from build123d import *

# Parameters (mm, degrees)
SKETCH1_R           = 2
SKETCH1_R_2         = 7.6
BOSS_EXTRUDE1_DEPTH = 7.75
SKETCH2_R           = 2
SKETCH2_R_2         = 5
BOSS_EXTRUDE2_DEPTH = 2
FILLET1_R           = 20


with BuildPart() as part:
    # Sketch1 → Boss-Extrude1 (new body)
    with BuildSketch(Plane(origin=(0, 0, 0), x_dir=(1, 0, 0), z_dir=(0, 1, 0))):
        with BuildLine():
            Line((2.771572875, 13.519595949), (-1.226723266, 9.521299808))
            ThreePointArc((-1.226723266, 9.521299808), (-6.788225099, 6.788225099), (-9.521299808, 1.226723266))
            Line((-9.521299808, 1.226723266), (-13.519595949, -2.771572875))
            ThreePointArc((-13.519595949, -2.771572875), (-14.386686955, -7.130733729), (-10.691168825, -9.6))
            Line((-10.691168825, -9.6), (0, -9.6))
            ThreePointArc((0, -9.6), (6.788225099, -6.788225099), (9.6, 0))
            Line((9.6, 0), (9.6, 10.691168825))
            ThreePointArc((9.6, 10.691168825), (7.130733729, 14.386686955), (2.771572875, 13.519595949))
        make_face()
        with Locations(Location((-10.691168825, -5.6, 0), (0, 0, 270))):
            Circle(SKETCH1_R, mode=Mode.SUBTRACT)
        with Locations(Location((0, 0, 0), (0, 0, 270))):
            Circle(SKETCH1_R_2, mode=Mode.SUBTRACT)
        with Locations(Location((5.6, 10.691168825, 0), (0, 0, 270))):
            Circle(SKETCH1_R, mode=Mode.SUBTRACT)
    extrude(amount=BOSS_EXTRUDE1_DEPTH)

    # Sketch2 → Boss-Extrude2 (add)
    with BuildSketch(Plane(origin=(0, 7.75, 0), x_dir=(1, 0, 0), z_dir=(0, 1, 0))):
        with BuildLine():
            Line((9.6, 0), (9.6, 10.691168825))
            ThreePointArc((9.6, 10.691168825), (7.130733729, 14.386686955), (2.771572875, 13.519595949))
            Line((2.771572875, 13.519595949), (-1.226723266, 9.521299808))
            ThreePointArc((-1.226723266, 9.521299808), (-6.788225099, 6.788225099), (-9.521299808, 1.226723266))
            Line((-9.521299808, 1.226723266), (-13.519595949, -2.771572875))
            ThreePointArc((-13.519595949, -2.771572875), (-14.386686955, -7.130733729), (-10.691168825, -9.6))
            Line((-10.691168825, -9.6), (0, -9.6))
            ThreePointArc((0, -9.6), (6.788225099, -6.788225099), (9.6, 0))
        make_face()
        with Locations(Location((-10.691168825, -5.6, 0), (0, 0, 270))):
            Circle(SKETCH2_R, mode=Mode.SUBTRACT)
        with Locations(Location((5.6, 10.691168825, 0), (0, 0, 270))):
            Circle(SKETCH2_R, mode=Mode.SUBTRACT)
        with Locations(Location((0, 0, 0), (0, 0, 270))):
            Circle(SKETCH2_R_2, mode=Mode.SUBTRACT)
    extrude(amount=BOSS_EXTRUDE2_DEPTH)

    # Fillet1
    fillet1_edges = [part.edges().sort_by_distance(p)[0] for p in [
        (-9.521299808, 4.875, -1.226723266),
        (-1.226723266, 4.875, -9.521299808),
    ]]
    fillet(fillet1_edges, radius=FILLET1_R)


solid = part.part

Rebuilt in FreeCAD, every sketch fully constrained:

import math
import FreeCAD as App
import Part
import Sketcher
Q = App.Units.Quantity


def edges_at(feature, points):
    """Names of the edges that pass closest to the given points."""
    edges = feature.Shape.Edges
    near = lambda p: min(range(len(edges)), key=lambda i: edges[i].distToShape(Part.Vertex(*p))[0])
    return sorted({f"Edge{near(p) + 1}" for p in points})

doc = App.newDocument("Part")
body = doc.addObject("PartDesign::Body", "Body")

# Sketch on XZ plane
sketch1 = doc.addObject("Sketcher::SketchObject", "Sketch")
body.addObject(sketch1)
sketch1.AttachmentSupport = (doc.XZ_Plane, [""])
sketch1.MapMode = "FlatFace"
sketch1.addGeometry(Part.LineSegment(App.Vector(2.771573, -13.519596, 0), App.Vector(-1.226723, -9.5213, 0)), False)
sketch1.addGeometry(Part.ArcOfCircle(Part.Circle(App.Vector(0, 0, 0), App.Vector(0, 0, 1), 9.6), math.radians(-172.658462), math.radians(-97.341538)), False)
sketch1.addGeometry(Part.LineSegment(App.Vector(-9.5213, -1.226723, 0), App.Vector(-13.519596, 2.771573, 0)), False)
sketch1.addGeometry(Part.ArcOfCircle(Part.Circle(App.Vector(-10.691169, 5.6, 0), App.Vector(0, 0, 1), 4), math.radians(90), math.radians(225)), False)
sketch1.addGeometry(Part.LineSegment(App.Vector(-10.691169, 9.6, 0), App.Vector(0, 9.6, 0)), False)
sketch1.addGeometry(Part.ArcOfCircle(Part.Circle(App.Vector(0, 0, 0), App.Vector(0, 0, 1), 9.6), math.radians(0), math.radians(90)), False)
sketch1.addGeometry(Part.LineSegment(App.Vector(9.6, 0, 0), App.Vector(9.6, -10.691169, 0)), False)
sketch1.addGeometry(Part.ArcOfCircle(Part.Circle(App.Vector(5.6, -10.691169, 0), App.Vector(0, 0, 1), 4), math.radians(-135), math.radians(0)), False)
sketch1.addGeometry(Part.Circle(App.Vector(-10.691169, 5.6, 0), App.Vector(0, 0, 1), 2), False)
sketch1.addGeometry(Part.Circle(App.Vector(0, 0, 0), App.Vector(0, 0, 1), 7.6), False)
sketch1.addGeometry(Part.Circle(App.Vector(5.6, -10.691169, 0), App.Vector(0, 0, 1), 2), False)
sketch1.addConstraint(Sketcher.Constraint("Coincident", 0, 2, 1, 2))
sketch1.addConstraint(Sketcher.Constraint("Coincident", 1, 1, 2, 1))
sketch1.addConstraint(Sketcher.Constraint("Tangent", 2, 2, 3, 2))
sketch1.addConstraint(Sketcher.Constraint("Tangent", 3, 1, 4, 1))
sketch1.addConstraint(Sketcher.Constraint("Tangent", 4, 2, 5, 2))
sketch1.addConstraint(Sketcher.Constraint("Tangent", 5, 1, 6, 1))
sketch1.addConstraint(Sketcher.Constraint("Tangent", 6, 2, 7, 2))
sketch1.addConstraint(Sketcher.Constraint("Tangent", 7, 1, 0, 1))
sketch1.addConstraint(Sketcher.Constraint("Horizontal", 4))
sketch1.addConstraint(Sketcher.Constraint("Vertical", 6))
sketch1.addConstraint(Sketcher.Constraint("Coincident", 1, 3, -1, 1))
sketch1.addConstraint(Sketcher.Constraint("Coincident", 5, 3, -1, 1))
sketch1.addConstraint(Sketcher.Constraint("Coincident", 9, 3, -1, 1))
sketch1.addConstraint(Sketcher.Constraint("Coincident", 8, 3, 3, 3))
sketch1.addConstraint(Sketcher.Constraint("Coincident", 10, 3, 7, 3))
sketch1.addConstraint(Sketcher.Constraint("Equal", 1, 5))
sketch1.addConstraint(Sketcher.Constraint("Equal", 3, 7))
sketch1.addConstraint(Sketcher.Constraint("Equal", 8, 10))
sketch1.addConstraint(Sketcher.Constraint("Parallel", 0, 2))
sketch1.addConstraint(Sketcher.Constraint("Equal", 4, 6))
sketch1.addConstraint(Sketcher.Constraint("Equal", 0, 2))
sketch1.addConstraint(Sketcher.Constraint("Diameter", 8, Q("4 mm")))
sketch1.addConstraint(Sketcher.Constraint("Radius", 3, Q("4 mm")))
sketch1.addConstraint(Sketcher.Constraint("Diameter", 9, Q("15.2 mm")))
sketch1.addConstraint(Sketcher.Constraint("Radius", 1, Q("9.6 mm")))
sketch1.addConstraint(Sketcher.Constraint("DistanceX", 4, 1, 4, 2, Q("10.691169 mm")))
pad1 = doc.addObject("PartDesign::Pad", "Pad")
body.addObject(pad1)
pad1.Profile = sketch1
pad1.Length = 7.75
pad1.Reversed = True

# Sketch on XZ plane
sketch2 = doc.addObject("Sketcher::SketchObject", "Sketch001")
body.addObject(sketch2)
sketch2.AttachmentSupport = (doc.XZ_Plane, [""])
sketch2.MapMode = "FlatFace"
sketch2.AttachmentOffset = App.Placement(App.Vector(0, 0, -7.75), App.Rotation())
sketch2.addGeometry(Part.LineSegment(App.Vector(9.6, 0, 0), App.Vector(9.6, -10.691169, 0)), False)
sketch2.addGeometry(Part.ArcOfCircle(Part.Circle(App.Vector(5.6, -10.691169, 0), App.Vector(0, 0, 1), 4), math.radians(-135), math.radians(0)), False)
sketch2.addGeometry(Part.LineSegment(App.Vector(2.771573, -13.519596, 0), App.Vector(-1.226723, -9.5213, 0)), False)
sketch2.addGeometry(Part.ArcOfCircle(Part.Circle(App.Vector(0, 0, 0), App.Vector(0, 0, 1), 9.6), math.radians(-172.658462), math.radians(-97.341538)), False)
sketch2.addGeometry(Part.LineSegment(App.Vector(-9.5213, -1.226723, 0), App.Vector(-13.519596, 2.771573, 0)), False)
sketch2.addGeometry(Part.ArcOfCircle(Part.Circle(App.Vector(-10.691169, 5.6, 0), App.Vector(0, 0, 1), 4), math.radians(90), math.radians(225)), False)
sketch2.addGeometry(Part.LineSegment(App.Vector(-10.691169, 9.6, 0), App.Vector(0, 9.6, 0)), False)
sketch2.addGeometry(Part.ArcOfCircle(Part.Circle(App.Vector(0, 0, 0), App.Vector(0, 0, 1), 9.6), math.radians(0), math.radians(90)), False)
sketch2.addGeometry(Part.Circle(App.Vector(-10.691169, 5.6, 0), App.Vector(0, 0, 1), 2), False)
sketch2.addGeometry(Part.Circle(App.Vector(0, 0, 0), App.Vector(0, 0, 1), 5), False)
sketch2.addGeometry(Part.Circle(App.Vector(5.6, -10.691169, 0), App.Vector(0, 0, 1), 2), False)
sketch2.addConstraint(Sketcher.Constraint("Tangent", 0, 2, 1, 2))
sketch2.addConstraint(Sketcher.Constraint("Tangent", 1, 1, 2, 1))
sketch2.addConstraint(Sketcher.Constraint("Coincident", 2, 2, 3, 2))
sketch2.addConstraint(Sketcher.Constraint("Coincident", 3, 1, 4, 1))
sketch2.addConstraint(Sketcher.Constraint("Tangent", 4, 2, 5, 2))
sketch2.addConstraint(Sketcher.Constraint("Tangent", 5, 1, 6, 1))
sketch2.addConstraint(Sketcher.Constraint("Tangent", 6, 2, 7, 2))
sketch2.addConstraint(Sketcher.Constraint("Tangent", 7, 1, 0, 1))
sketch2.addConstraint(Sketcher.Constraint("Vertical", 0))
sketch2.addConstraint(Sketcher.Constraint("Horizontal", 6))
sketch2.addConstraint(Sketcher.Constraint("Coincident", 3, 3, -1, 1))
sketch2.addConstraint(Sketcher.Constraint("Coincident", 7, 3, -1, 1))
sketch2.addConstraint(Sketcher.Constraint("Coincident", 9, 3, -1, 1))
sketch2.addConstraint(Sketcher.Constraint("Coincident", 8, 3, 5, 3))
sketch2.addConstraint(Sketcher.Constraint("Coincident", 10, 3, 1, 3))
sketch2.addConstraint(Sketcher.Constraint("Equal", 1, 5))
sketch2.addConstraint(Sketcher.Constraint("Equal", 3, 7))
sketch2.addConstraint(Sketcher.Constraint("Equal", 8, 10))
sketch2.addConstraint(Sketcher.Constraint("Parallel", 2, 4))
sketch2.addConstraint(Sketcher.Constraint("Equal", 6, 0))
sketch2.addConstraint(Sketcher.Constraint("Equal", 2, 4))
sketch2.addConstraint(Sketcher.Constraint("Diameter", 8, Q("4 mm")))
sketch2.addConstraint(Sketcher.Constraint("Diameter", 9, Q("10 mm")))
sketch2.addConstraint(Sketcher.Constraint("Radius", 1, Q("4 mm")))
sketch2.addConstraint(Sketcher.Constraint("Radius", 3, Q("9.6 mm")))
sketch2.addConstraint(Sketcher.Constraint("DistanceX", 6, 1, 6, 2, Q("10.691169 mm")))
pad2 = doc.addObject("PartDesign::Pad", "Pad001")
body.addObject(pad2)
pad2.Profile = sketch2
pad2.Length = 2
pad2.Reversed = True
doc.recompute()

fillet = doc.addObject("PartDesign::Fillet", "Fillet")
body.addObject(fillet)
fillet.Base = (pad2, edges_at(pad2, [(-9.521, 4.875, -1.227), (-1.227, 4.875, -9.521)]))
fillet.Radius = 20

doc.recompute()
